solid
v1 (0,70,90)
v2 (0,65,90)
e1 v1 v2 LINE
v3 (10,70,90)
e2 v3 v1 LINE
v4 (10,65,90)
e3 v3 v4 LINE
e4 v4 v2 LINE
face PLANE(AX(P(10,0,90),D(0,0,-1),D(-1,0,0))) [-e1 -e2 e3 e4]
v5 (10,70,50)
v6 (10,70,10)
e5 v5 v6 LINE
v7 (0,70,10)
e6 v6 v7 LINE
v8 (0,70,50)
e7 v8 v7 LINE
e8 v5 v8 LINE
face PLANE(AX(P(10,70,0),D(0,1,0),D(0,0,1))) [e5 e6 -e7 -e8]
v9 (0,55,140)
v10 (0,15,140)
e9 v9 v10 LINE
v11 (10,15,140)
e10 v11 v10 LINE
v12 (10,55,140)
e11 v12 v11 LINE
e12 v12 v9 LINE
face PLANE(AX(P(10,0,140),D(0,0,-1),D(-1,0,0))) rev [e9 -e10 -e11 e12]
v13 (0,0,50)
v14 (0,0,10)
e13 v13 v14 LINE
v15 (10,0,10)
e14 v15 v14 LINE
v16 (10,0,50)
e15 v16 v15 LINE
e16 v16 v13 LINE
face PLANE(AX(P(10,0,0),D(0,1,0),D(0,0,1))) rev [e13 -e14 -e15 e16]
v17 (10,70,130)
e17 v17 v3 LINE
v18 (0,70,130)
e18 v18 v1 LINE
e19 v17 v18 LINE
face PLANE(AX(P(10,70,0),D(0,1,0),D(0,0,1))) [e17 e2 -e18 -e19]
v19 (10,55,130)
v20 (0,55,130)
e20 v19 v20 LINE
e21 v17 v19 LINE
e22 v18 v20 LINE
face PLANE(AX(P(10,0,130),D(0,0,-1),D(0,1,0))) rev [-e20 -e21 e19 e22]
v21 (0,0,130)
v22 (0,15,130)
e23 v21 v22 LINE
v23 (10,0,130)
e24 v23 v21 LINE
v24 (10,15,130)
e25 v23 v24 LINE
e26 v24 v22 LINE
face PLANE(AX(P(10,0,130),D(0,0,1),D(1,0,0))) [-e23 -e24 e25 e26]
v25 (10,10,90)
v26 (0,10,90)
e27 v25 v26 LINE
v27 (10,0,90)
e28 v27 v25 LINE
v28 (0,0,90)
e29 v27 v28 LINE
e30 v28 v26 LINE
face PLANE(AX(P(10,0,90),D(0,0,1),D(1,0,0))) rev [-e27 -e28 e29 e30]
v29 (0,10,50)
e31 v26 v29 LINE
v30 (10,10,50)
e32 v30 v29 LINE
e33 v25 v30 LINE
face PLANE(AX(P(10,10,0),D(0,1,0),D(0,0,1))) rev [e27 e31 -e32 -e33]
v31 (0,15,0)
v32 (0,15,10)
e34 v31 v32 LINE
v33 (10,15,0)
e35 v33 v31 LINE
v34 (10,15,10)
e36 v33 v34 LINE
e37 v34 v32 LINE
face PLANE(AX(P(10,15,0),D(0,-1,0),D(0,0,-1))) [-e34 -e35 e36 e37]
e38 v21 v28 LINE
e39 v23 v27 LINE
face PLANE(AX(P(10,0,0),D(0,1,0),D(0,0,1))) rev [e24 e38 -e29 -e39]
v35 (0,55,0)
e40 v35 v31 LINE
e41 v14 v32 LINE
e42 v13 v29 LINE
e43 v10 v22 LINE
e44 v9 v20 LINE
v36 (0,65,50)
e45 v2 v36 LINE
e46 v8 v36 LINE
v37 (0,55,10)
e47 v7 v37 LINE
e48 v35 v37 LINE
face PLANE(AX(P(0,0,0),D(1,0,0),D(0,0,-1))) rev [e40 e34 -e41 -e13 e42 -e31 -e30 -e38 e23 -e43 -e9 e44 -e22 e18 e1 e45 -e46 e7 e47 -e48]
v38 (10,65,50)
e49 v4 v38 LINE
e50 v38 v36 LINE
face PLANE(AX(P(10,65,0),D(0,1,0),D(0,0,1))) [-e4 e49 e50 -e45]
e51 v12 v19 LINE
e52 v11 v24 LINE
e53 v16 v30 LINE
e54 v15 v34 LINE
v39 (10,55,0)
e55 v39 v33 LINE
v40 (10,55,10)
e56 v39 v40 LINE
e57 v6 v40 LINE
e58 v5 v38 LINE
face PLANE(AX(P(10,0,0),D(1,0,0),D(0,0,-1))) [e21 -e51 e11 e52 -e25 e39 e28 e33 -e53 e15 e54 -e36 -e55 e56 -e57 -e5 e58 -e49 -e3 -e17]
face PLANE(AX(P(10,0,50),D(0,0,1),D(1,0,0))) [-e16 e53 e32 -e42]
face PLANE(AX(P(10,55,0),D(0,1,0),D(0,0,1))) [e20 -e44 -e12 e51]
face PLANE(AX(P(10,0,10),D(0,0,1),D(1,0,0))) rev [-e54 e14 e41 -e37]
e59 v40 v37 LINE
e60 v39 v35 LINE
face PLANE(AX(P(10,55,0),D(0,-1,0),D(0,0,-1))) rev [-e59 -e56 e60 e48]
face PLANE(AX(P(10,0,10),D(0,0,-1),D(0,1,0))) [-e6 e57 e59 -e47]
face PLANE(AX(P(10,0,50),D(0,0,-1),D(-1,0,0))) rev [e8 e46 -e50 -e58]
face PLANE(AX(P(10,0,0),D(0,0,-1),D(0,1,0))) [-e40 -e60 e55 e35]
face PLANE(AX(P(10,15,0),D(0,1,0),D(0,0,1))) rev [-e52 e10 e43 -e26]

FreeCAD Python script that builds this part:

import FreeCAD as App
import Part
import Sketcher

V = App.Vector

doc = App.newDocument("Part")
params = doc.addObject("Spreadsheet::Sheet", "Params")
for row, (alias, value) in enumerate([
    ("sketch1_width", "15 mm"),
    ("sketch1_width2", "40 mm"),
    ("sketch1_width3", "10 mm"),
    ("sketch1_width4", "5 mm"),
    ("pad1_length", "10 mm"),
], start=1):
    params.set(f"A{row}", alias)
    params.set(f"B{row}", "=" + value)
    params.setAlias(f"B{row}", alias)

body = doc.addObject("PartDesign::Body", "Body")

# Sketch on YZ plane
sketch1 = body.newObject("Sketcher::SketchObject", "Sketch")
sketch1.AttachmentSupport = (doc.getObject("YZ_Plane"), [""])
sketch1.MapMode = "FlatFace"
sketch1.addGeometry(Part.LineSegment(V(70, 90, 0), V(70, 130, 0)), False)
sketch1.addGeometry(Part.LineSegment(V(70, 130, 0), V(55, 130, 0)), False)
sketch1.addGeometry(Part.LineSegment(V(55, 130, 0), V(55, 140, 0)), False)
sketch1.addGeometry(Part.LineSegment(V(55, 140, 0), V(15, 140, 0)), False)
sketch1.addGeometry(Part.LineSegment(V(15, 140, 0), V(15, 130, 0)), False)
sketch1.addGeometry(Part.LineSegment(V(15, 130, 0), V(0, 130, 0)), False)
sketch1.addGeometry(Part.LineSegment(V(0, 130, 0), V(0, 90, 0)), False)
sketch1.addGeometry(Part.LineSegment(V(0, 90, 0), V(10, 90, 0)), False)
sketch1.addGeometry(Part.LineSegment(V(10, 90, 0), V(10, 50, 0)), False)
sketch1.addGeometry(Part.LineSegment(V(10, 50, 0), V(0, 50, 0)), False)
sketch1.addGeometry(Part.LineSegment(V(0, 50, 0), V(0, 10, 0)), False)
sketch1.addGeometry(Part.LineSegment(V(0, 10, 0), V(15, 10, 0)), False)
sketch1.addGeometry(Part.LineSegment(V(15, 10, 0), V(15, 0, 0)), False)
sketch1.addGeometry(Part.LineSegment(V(15, 0, 0), V(55, 0, 0)), False)
sketch1.addGeometry(Part.LineSegment(V(55, 0, 0), V(55, 10, 0)), False)
sketch1.addGeometry(Part.LineSegment(V(55, 10, 0), V(70, 10, 0)), False)
sketch1.addGeometry(Part.LineSegment(V(70, 10, 0), V(70, 50, 0)), False)
sketch1.addGeometry(Part.LineSegment(V(70, 50, 0), V(65, 50, 0)), False)
sketch1.addGeometry(Part.LineSegment(V(65, 50, 0), V(65, 90, 0)), False)
sketch1.addGeometry(Part.LineSegment(V(65, 90, 0), V(70, 90, 0)), False)
sketch1.addConstraint(Sketcher.Constraint("Coincident", 0, 2, 1, 1))
sketch1.addConstraint(Sketcher.Constraint("Coincident", 1, 2, 2, 1))
sketch1.addConstraint(Sketcher.Constraint("Coincident", 2, 2, 3, 1))
sketch1.addConstraint(Sketcher.Constraint("Coincident", 3, 2, 4, 1))
sketch1.addConstraint(Sketcher.Constraint("Coincident", 4, 2, 5, 1))
sketch1.addConstraint(Sketcher.Constraint("Coincident", 5, 2, 6, 1))
sketch1.addConstraint(Sketcher.Constraint("Coincident", 6, 2, 7, 1))
sketch1.addConstraint(Sketcher.Constraint("Coincident", 7, 2, 8, 1))
sketch1.addConstraint(Sketcher.Constraint("Coincident", 8, 2, 9, 1))
sketch1.addConstraint(Sketcher.Constraint("Coincident", 9, 2, 10, 1))
sketch1.addConstraint(Sketcher.Constraint("Coincident", 10, 2, 11, 1))
sketch1.addConstraint(Sketcher.Constraint("Coincident", 11, 2, 12, 1))
sketch1.addConstraint(Sketcher.Constraint("Coincident", 12, 2, 13, 1))
sketch1.addConstraint(Sketcher.Constraint("Coincident", 13, 2, 14, 1))
sketch1.addConstraint(Sketcher.Constraint("Coincident", 14, 2, 15, 1))
sketch1.addConstraint(Sketcher.Constraint("Coincident", 15, 2, 16, 1))
sketch1.addConstraint(Sketcher.Constraint("Coincident", 16, 2, 17, 1))
sketch1.addConstraint(Sketcher.Constraint("Coincident", 17, 2, 18, 1))
sketch1.addConstraint(Sketcher.Constraint("Coincident", 18, 2, 19, 1))
sketch1.addConstraint(Sketcher.Constraint("Coincident", 19, 2, 0, 1))
sketch1.addConstraint(Sketcher.Constraint("Vertical", 0))
sketch1.addConstraint(Sketcher.Constraint("Horizontal", 1))
sketch1.addConstraint(Sketcher.Constraint("Vertical", 2))
sketch1.addConstraint(Sketcher.Constraint("Horizontal", 3))
sketch1.addConstraint(Sketcher.Constraint("Vertical", 4))
sketch1.addConstraint(Sketcher.Constraint("Horizontal", 5))
sketch1.addConstraint(Sketcher.Constraint("Vertical", 6))
sketch1.addConstraint(Sketcher.Constraint("Horizontal", 7))
sketch1.addConstraint(Sketcher.Constraint("Vertical", 8))
sketch1.addConstraint(Sketcher.Constraint("Horizontal", 9))
sketch1.addConstraint(Sketcher.Constraint("Vertical", 10))
sketch1.addConstraint(Sketcher.Constraint("Horizontal", 11))
sketch1.addConstraint(Sketcher.Constraint("Vertical", 12))
sketch1.addConstraint(Sketcher.Constraint("Horizontal", 13))
sketch1.addConstraint(Sketcher.Constraint("Vertical", 14))
sketch1.addConstraint(Sketcher.Constraint("Horizontal", 15))
sketch1.addConstraint(Sketcher.Constraint("Vertical", 16))
sketch1.addConstraint(Sketcher.Constraint("Horizontal", 17))
sketch1.addConstraint(Sketcher.Constraint("Vertical", 18))
sketch1.addConstraint(Sketcher.Constraint("Horizontal", 19))
sketch1.addConstraint(Sketcher.Constraint("PointOnObject", 5, 2, -2))
sketch1.addConstraint(Sketcher.Constraint("PointOnObject", 9, 2, -2))
sketch1.addConstraint(Sketcher.Constraint("PointOnObject", 12, 2, -1))
sketch1.addConstraint(Sketcher.Constraint("Horizontal", 1, 2, 4, 2))
sketch1.addConstraint(Sketcher.Constraint("Horizontal", 11, 2, 14, 2))
sketch1.addConstraint(Sketcher.Constraint("Horizontal", 9, 2, 16, 2))
sketch1.addConstraint(Sketcher.Constraint("Horizontal", 7, 2, 18, 2))
sketch1.addConstraint(Sketcher.Constraint("Vertical", 4, 2, 11, 2))
sketch1.addConstraint(Sketcher.Constraint("Vertical", 2, 2, 13, 2))
sketch1.addConstraint(Sketcher.Constraint("Vertical", 0, 2, 15, 2))
sketch1.addConstraint(Sketcher.Constraint("Equal", 1, 5))
sketch1.addConstraint(Sketcher.Constraint("Equal", 13, 0))
sketch1.addConstraint(Sketcher.Constraint("Equal", 9, 2))
sketch1.addConstraint(Sketcher.Constraint("Equal", 6, 8))
sketch1.addConstraint(Sketcher.Constraint("Equal", 8, 10))
sketch1.addConstraint(Sketcher.Constraint("Equal", 4, 12))
sketch1.addConstraint(Sketcher.Constraint("DistanceX", 1, 2, 1, 1, 15.0))
sketch1.addConstraint(Sketcher.Constraint("DistanceX", 3, 2, 3, 1, 40.0))
sketch1.addConstraint(Sketcher.Constraint("DistanceX", 7, 1, 7, 2, 10.0))
sketch1.addConstraint(Sketcher.Constraint("DistanceX", 17, 2, 17, 1, 5.0))
sketch1.setExpression("Constraints[56]", "Params.sketch1_width")
sketch1.setExpression("Constraints[57]", "Params.sketch1_width2")
sketch1.setExpression("Constraints[58]", "Params.sketch1_width3")
sketch1.setExpression("Constraints[59]", "Params.sketch1_width4")
pad1 = body.newObject("PartDesign::Pad", "Pad")
pad1.Profile = sketch1
pad1.setExpression("Length", "Params.pad1_length")

doc.recompute()
